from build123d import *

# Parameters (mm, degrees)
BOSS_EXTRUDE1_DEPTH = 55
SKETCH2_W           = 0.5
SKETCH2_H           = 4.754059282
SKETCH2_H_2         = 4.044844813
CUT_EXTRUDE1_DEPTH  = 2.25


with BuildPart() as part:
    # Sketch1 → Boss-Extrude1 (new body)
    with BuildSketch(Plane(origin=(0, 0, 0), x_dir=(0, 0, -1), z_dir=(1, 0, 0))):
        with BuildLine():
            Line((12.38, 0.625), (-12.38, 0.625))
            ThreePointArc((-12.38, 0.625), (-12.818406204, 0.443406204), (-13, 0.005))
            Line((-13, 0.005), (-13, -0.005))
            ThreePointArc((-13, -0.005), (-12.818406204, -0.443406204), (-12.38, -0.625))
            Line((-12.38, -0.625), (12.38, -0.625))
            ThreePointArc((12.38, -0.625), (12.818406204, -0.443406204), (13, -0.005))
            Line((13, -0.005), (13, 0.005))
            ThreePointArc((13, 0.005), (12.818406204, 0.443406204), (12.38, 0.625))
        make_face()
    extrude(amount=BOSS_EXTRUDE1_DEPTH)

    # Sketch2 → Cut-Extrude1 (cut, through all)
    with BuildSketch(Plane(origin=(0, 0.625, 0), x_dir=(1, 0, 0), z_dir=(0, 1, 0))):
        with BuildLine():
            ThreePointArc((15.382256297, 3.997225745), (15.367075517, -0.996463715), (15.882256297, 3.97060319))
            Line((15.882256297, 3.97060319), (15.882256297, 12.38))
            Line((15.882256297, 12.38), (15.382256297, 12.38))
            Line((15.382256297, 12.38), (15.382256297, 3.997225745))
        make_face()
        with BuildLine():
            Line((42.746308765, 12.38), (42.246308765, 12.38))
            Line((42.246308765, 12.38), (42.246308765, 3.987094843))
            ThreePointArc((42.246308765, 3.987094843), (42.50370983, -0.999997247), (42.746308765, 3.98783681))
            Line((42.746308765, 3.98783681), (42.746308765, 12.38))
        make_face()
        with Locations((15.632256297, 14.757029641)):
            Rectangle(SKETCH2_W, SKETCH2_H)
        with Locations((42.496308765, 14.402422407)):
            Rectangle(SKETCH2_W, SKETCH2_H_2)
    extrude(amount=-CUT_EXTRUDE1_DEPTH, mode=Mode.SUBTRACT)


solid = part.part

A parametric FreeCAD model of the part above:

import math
import FreeCAD as App
import Part
import Sketcher
from FreeCAD import Vector

doc = App.newDocument("Part")
body = doc.addObject("PartDesign::Body", "Body")

sketch1 = doc.addObject("Sketcher::SketchObject", "Sketch")
body.addObject(sketch1)
sketch1.AttachmentSupport = (doc.YZ_Plane, [""])
sketch1.MapMode = "FlatFace"
sketch1.addGeometry(Part.LineSegment(Vector(0.625, -12.38, 0), Vector(0.625, 12.38, 0)), False)
sketch1.addGeometry(Part.ArcOfCircle(Part.Circle(Vector(0.005, 12.38, 0), Vector(0, 0, 1), 0.62), math.radians(0), math.radians(90)), False)
sketch1.addGeometry(Part.LineSegment(Vector(0.005, 13, 0), Vector(-0.005, 13, 0)), False)
sketch1.addGeometry(Part.ArcOfCircle(Part.Circle(Vector(-0.005, 12.38, 0), Vector(0, 0, 1), 0.62), math.radians(90), math.radians(180)), False)
sketch1.addGeometry(Part.LineSegment(Vector(-0.625, 12.38, 0), Vector(-0.625, -12.38, 0)), False)
sketch1.addGeometry(Part.ArcOfCircle(Part.Circle(Vector(-0.005, -12.38, 0), Vector(0, 0, 1), 0.62), math.radians(-180), math.radians(-90)), False)
sketch1.addGeometry(Part.LineSegment(Vector(-0.005, -13, 0), Vector(0.005, -13, 0)), False)
sketch1.addGeometry(Part.ArcOfCircle(Part.Circle(Vector(0.005, -12.38, 0), Vector(0, 0, 1), 0.62), math.radians(-90), math.radians(0)), False)
sketch1.addConstraint(Sketcher.Constraint("Tangent", 0, 2, 1, 1))
sketch1.addConstraint(Sketcher.Constraint("Tangent", 1, 2, 2, 1))
sketch1.addConstraint(Sketcher.Constraint("Tangent", 2, 2, 3, 1))
sketch1.addConstraint(Sketcher.Constraint("Tangent", 3, 2, 4, 1))
sketch1.addConstraint(Sketcher.Constraint("Tangent", 4, 2, 5, 1))
sketch1.addConstraint(Sketcher.Constraint("Tangent", 5, 2, 6, 1))
sketch1.addConstraint(Sketcher.Constraint("Tangent", 6, 2, 7, 1))
sketch1.addConstraint(Sketcher.Constraint("Tangent", 7, 2, 0, 1))
sketch1.addConstraint(Sketcher.Constraint("Vertical", 0))
sketch1.addConstraint(Sketcher.Constraint("Horizontal", 2))
sketch1.addConstraint(Sketcher.Constraint("Vertical", 4))
sketch1.addConstraint(Sketcher.Constraint("Horizontal", 6))
sketch1.addConstraint(Sketcher.Constraint("Equal", 1, 3))
sketch1.addConstraint(Sketcher.Constraint("Equal", 3, 5))
sketch1.addConstraint(Sketcher.Constraint("Equal", 5, 7))
sketch1.addConstraint(Sketcher.Constraint("Symmetric", 1, 3, 5, 3, -1, 1))
sketch1.addConstraint(Sketcher.Constraint("Radius", 1, 0.62))
sketch1.addConstraint(Sketcher.Constraint("DistanceY", -1, 1, 1, 2, 13.0))
sketch1.addConstraint(Sketcher.Constraint("DistanceX", 2, 2, 2, 1, 0.01))
pad1 = doc.addObject("PartDesign::Pad", "Pad")
body.addObject(pad1)
pad1.Profile = sketch1
pad1.Length = 55

sketch2 = doc.addObject("Sketcher::SketchObject", "Sketch001")
body.addObject(sketch2)
sketch2.AttachmentSupport = (doc.XZ_Plane, [""])
sketch2.MapMode = "FlatFace"
sketch2.AttachmentOffset = App.Placement(Vector(0, 0, -0.625), App.Rotation())
sketch2.addGeometry(Part.ArcOfCircle(Part.Circle(Vector(15.5, -1.5, 0), Vector(0, 0, 1), 2.5), math.radians(-81.204831), math.radians(267.300515)), False)
sketch2.addGeometry(Part.LineSegment(Vector(15.882256, -3.970603, 0), Vector(15.882256, -17.134059, 0)), False)
sketch2.addGeometry(Part.LineSegment(Vector(15.882256, -17.134059, 0), Vector(15.382256, -17.134059, 0)), False)
sketch2.addGeometry(Part.LineSegment(Vector(15.382256, -17.134059, 0), Vector(15.382256, -3.997226, 0)), False)
sketch2.addGeometry(Part.ArcOfCircle(Part.Circle(Vector(42.5, -1.5, 0), Vector(0, 0, 1), 2.5), math.radians(-84.345846), math.radians(264.1758)), False)
sketch2.addGeometry(Part.LineSegment(Vector(42.746309, -3.987837, 0), Vector(42.746309, -16.424845, 0)), False)
sketch2.addGeometry(Part.LineSegment(Vector(42.746309, -16.424845, 0), Vector(42.246309, -16.424845, 0)), False)
sketch2.addGeometry(Part.LineSegment(Vector(42.246309, -16.424845, 0), Vector(42.246309, -3.987095, 0)), False)
sketch2.addConstraint(Sketcher.Constraint("Coincident", 0, 1, 1, 1))
sketch2.addConstraint(Sketcher.Constraint("Coincident", 1, 2, 2, 1))
sketch2.addConstraint(Sketcher.Constraint("Coincident", 2, 2, 3, 1))
sketch2.addConstraint(Sketcher.Constraint("Coincident", 3, 2, 0, 2))
sketch2.addConstraint(Sketcher.Constraint("Coincident", 4, 1, 5, 1))
sketch2.addConstraint(Sketcher.Constraint("Coincident", 5, 2, 6, 1))
sketch2.addConstraint(Sketcher.Constraint("Coincident", 6, 2, 7, 1))
sketch2.addConstraint(Sketcher.Constraint("Coincident", 7, 2, 4, 2))
sketch2.addConstraint(Sketcher.Constraint("Vertical", 1))
sketch2.addConstraint(Sketcher.Constraint("Horizontal", 2))
sketch2.addConstraint(Sketcher.Constraint("Vertical", 3))
sketch2.addConstraint(Sketcher.Constraint("Vertical", 5))
sketch2.addConstraint(Sketcher.Constraint("Horizontal", 6))
sketch2.addConstraint(Sketcher.Constraint("Vertical", 7))
sketch2.addConstraint(Sketcher.Constraint("Equal", 0, 4))
sketch2.addConstraint(Sketcher.Constraint("Horizontal", 0, 3, 4, 3))
sketch2.addConstraint(Sketcher.Constraint("Equal", 2, 6))
sketch2.addConstraint(Sketcher.Constraint("Radius", 0, 2.5))
sketch2.addConstraint(Sketcher.Constraint("DistanceX", 2, 2, 2, 1, 0.5))
sketch2.addConstraint(Sketcher.Constraint("DistanceX", 0, 3, 4, 3, 27.0))
sketch2.addConstraint(Sketcher.Constraint("DistanceX", -1, 1, 0, 3, 15.5))
sketch2.addConstraint(Sketcher.Constraint("DistanceY", 0, 3, -1, 1, 1.5))
sketch2.addConstraint(Sketcher.Constraint("DistanceY", 5, 2, 5, 1, 12.437008))
sketch2.addConstraint(Sketcher.Constraint("DistanceY", 7, 1, 7, 2, 12.43775))
sketch2.addConstraint(Sketcher.Constraint("DistanceY", 1, 2, 1, 1, 13.163456))
sketch2.addConstraint(Sketcher.Constraint("DistanceY", 3, 1, 3, 2, 13.136834))
pocket1 = doc.addObject("PartDesign::Pocket", "Pocket")
body.addObject(pocket1)
pocket1.Profile = sketch2
pocket1.Type = "ThroughAll"
pocket1.Reversed = True

doc.recompute()
